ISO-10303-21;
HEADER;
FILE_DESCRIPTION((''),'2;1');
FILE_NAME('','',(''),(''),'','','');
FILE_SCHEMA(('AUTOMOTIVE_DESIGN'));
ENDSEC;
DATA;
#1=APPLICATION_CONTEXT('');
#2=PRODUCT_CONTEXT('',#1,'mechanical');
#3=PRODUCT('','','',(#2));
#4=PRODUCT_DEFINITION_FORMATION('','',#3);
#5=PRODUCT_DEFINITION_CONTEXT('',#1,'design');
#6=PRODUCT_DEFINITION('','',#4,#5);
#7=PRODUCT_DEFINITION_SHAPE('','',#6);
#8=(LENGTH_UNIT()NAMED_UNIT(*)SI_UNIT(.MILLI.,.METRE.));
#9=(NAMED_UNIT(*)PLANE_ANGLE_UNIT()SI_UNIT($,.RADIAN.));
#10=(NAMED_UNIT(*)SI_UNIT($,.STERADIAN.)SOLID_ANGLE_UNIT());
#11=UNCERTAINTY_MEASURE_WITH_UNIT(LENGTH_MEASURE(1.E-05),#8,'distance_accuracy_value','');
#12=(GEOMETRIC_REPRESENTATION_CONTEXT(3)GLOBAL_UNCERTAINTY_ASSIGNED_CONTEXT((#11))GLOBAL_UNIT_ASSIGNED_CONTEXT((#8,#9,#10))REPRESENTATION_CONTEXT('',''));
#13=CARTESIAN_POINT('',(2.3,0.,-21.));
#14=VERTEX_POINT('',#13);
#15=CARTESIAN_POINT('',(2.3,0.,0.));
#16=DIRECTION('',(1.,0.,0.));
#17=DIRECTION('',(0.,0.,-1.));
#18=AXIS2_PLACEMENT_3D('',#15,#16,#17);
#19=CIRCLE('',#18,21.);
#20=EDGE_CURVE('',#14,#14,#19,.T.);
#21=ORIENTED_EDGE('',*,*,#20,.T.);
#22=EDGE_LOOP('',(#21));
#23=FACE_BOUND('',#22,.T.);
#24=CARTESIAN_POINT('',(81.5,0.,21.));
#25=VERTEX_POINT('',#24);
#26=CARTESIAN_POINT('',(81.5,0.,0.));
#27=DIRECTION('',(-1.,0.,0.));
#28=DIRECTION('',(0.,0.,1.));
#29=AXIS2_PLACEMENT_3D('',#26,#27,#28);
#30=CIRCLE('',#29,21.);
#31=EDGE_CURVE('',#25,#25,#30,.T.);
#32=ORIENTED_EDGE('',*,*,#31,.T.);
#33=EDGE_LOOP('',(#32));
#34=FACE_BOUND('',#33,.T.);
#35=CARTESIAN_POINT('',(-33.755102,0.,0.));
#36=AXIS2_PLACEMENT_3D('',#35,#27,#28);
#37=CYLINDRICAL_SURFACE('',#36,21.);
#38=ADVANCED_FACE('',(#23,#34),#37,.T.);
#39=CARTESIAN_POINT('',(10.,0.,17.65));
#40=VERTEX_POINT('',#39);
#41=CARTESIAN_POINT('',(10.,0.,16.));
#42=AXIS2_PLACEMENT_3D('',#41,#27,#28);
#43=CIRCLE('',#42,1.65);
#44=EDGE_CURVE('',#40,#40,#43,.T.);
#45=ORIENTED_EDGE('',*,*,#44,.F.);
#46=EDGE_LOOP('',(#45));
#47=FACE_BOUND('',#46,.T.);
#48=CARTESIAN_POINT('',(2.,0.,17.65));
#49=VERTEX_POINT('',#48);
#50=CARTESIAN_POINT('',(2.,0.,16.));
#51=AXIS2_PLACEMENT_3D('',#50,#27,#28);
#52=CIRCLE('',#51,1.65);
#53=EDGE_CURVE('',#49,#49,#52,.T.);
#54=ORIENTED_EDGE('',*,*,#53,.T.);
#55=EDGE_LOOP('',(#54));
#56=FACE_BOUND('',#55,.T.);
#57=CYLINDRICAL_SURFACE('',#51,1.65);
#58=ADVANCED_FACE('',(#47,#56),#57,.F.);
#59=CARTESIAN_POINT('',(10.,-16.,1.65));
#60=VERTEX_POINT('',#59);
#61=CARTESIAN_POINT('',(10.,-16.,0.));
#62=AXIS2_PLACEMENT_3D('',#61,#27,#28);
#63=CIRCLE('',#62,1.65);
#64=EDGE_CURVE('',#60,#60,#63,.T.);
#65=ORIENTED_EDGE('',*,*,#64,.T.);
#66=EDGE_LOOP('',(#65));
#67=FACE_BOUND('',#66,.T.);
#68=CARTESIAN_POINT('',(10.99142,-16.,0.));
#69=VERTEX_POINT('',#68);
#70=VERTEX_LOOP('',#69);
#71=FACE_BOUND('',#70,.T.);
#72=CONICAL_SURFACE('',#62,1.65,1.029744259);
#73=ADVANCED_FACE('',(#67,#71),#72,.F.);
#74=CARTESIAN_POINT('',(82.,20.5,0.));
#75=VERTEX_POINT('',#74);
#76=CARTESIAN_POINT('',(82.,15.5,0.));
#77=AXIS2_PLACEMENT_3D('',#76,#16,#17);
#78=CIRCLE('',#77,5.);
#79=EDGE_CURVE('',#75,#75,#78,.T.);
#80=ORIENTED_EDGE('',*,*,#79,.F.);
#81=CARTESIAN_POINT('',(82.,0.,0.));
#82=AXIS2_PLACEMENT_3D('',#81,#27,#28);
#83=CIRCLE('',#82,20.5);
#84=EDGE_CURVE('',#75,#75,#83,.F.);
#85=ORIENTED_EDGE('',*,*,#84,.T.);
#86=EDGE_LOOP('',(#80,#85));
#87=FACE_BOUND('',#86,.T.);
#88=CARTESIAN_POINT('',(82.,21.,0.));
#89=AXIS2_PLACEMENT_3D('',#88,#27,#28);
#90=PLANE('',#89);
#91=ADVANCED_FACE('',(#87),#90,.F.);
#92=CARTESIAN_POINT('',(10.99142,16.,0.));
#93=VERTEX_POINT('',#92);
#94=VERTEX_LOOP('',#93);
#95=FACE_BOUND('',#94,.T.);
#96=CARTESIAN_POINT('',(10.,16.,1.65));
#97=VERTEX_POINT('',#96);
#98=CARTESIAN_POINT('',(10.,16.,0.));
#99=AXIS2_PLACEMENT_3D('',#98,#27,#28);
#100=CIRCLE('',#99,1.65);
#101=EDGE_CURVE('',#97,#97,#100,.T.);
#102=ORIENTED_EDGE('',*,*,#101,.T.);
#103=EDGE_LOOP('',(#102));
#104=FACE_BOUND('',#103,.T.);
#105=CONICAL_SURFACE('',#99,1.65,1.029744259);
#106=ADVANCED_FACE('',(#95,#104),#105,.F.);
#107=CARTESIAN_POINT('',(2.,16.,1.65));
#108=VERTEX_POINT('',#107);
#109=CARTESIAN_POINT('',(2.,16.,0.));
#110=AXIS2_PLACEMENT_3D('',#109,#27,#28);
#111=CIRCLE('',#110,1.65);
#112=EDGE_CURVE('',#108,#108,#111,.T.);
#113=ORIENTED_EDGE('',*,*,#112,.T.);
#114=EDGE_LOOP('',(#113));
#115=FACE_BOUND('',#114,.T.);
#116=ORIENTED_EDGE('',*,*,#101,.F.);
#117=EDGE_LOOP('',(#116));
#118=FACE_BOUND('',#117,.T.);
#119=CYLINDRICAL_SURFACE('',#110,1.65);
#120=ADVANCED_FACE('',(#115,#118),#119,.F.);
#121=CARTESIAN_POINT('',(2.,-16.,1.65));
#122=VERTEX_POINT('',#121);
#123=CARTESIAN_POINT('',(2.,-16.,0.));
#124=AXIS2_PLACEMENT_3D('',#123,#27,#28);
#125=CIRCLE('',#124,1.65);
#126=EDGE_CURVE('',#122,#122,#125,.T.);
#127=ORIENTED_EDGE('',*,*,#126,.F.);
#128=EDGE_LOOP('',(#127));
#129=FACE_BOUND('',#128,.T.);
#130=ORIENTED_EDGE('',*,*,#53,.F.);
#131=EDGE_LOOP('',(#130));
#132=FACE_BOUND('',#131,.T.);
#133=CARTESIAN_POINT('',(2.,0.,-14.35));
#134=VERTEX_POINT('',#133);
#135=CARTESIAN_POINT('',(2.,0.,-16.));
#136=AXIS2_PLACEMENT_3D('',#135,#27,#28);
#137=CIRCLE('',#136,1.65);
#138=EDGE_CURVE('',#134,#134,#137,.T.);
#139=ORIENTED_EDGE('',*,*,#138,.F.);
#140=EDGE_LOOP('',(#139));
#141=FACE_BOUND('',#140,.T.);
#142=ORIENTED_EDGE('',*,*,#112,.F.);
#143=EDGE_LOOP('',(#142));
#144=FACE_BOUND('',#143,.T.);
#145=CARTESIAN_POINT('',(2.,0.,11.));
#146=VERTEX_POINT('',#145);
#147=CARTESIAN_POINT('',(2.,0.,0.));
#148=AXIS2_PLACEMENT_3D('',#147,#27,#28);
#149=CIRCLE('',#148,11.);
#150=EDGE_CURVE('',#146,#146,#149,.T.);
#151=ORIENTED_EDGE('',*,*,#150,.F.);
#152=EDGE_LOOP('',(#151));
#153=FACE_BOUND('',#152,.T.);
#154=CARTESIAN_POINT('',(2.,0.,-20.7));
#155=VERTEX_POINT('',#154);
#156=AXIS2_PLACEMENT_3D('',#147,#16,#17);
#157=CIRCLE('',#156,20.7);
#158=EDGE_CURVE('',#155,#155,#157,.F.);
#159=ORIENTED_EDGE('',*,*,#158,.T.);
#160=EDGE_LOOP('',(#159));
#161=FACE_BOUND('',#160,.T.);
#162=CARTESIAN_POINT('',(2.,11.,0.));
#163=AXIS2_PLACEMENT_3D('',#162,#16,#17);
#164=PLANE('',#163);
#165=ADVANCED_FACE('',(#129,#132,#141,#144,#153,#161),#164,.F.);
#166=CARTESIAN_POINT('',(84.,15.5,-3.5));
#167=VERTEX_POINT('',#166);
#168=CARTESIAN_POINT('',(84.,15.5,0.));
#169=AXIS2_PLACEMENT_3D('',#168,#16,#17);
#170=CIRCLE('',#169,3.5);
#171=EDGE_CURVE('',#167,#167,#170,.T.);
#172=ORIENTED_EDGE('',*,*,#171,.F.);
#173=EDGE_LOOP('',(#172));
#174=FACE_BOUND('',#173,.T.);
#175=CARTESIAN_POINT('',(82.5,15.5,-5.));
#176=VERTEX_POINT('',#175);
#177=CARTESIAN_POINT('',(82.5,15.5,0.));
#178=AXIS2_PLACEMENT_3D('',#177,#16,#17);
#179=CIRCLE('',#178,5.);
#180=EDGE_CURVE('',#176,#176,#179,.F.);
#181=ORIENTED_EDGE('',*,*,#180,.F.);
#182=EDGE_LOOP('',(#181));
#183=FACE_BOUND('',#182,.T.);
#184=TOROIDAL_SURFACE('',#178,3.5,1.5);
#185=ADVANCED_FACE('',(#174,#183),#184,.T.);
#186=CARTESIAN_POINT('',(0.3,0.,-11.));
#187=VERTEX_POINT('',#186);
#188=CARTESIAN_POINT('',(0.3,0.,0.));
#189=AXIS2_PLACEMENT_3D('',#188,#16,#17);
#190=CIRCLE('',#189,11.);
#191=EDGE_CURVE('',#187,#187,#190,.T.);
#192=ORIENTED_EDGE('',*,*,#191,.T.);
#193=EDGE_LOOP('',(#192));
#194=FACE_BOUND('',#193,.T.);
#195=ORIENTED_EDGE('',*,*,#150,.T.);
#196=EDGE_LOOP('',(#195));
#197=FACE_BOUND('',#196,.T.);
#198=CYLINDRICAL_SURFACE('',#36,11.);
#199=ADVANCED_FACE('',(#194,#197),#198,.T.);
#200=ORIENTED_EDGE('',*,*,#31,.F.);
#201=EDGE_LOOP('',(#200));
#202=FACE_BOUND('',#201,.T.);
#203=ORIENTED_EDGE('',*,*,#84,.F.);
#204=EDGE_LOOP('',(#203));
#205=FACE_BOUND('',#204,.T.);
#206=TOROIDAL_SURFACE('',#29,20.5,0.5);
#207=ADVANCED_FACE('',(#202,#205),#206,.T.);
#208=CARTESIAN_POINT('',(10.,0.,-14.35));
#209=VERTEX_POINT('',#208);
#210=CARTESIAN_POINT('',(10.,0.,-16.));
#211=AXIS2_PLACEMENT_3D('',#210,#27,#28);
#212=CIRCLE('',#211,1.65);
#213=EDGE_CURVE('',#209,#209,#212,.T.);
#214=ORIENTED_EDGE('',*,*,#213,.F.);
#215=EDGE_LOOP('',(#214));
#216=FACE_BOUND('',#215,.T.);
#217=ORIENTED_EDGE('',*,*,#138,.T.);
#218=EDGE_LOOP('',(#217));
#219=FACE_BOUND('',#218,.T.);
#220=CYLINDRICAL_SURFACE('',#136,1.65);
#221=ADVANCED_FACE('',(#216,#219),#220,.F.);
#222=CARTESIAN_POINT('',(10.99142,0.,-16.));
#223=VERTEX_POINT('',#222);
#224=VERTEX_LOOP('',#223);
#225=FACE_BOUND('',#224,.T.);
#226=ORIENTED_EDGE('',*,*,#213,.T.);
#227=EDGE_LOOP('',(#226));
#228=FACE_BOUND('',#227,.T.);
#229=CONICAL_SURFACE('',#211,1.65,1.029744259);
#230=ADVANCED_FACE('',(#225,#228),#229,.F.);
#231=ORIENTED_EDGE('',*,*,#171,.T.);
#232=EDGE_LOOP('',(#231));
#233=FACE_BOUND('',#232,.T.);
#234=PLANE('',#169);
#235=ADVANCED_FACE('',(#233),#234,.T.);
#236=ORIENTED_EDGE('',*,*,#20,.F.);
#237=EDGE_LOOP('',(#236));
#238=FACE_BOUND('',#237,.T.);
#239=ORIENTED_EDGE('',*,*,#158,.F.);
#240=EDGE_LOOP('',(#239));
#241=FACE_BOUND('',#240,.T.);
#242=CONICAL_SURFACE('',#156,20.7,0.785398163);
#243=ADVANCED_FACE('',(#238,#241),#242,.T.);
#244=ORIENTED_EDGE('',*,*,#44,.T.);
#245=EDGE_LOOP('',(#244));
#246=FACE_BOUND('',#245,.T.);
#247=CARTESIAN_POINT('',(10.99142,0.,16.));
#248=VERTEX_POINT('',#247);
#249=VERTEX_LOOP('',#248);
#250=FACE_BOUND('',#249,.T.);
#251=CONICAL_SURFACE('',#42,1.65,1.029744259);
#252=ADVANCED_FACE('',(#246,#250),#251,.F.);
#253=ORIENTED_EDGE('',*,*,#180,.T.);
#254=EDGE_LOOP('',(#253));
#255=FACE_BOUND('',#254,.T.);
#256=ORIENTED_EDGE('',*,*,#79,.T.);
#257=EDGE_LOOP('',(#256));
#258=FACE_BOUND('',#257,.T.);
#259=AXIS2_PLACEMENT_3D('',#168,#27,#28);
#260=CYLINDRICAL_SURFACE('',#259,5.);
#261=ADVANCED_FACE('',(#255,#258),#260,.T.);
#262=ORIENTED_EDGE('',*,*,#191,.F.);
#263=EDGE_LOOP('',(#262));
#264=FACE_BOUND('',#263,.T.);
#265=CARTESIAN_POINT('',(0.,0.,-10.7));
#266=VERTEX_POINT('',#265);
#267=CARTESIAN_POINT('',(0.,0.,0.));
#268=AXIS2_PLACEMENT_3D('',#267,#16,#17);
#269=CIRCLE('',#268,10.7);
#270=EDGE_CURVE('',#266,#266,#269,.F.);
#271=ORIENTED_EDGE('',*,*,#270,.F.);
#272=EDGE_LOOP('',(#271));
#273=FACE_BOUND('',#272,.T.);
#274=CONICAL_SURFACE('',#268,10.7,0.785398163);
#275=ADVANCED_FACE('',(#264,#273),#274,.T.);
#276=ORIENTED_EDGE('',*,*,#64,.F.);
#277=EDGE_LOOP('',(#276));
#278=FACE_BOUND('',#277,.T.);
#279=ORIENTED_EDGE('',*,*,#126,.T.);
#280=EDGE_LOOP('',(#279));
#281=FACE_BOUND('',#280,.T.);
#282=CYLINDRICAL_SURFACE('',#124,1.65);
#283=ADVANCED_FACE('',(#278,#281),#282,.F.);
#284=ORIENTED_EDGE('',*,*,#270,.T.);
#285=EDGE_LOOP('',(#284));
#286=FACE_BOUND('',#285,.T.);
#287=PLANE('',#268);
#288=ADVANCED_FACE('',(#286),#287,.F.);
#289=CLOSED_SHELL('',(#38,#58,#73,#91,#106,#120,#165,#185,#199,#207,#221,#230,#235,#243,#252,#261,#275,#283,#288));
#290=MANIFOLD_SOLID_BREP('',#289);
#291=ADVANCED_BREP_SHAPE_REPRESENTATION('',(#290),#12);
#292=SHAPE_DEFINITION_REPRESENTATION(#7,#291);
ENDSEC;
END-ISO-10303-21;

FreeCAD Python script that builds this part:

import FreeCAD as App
import Part
import Sketcher
from FreeCAD import Vector
Q = App.Units.Quantity


def edges_at(feature, points):
    """Names of the edges that pass closest to the given points."""
    edges = feature.Shape.Edges
    near = lambda p: min(range(len(edges)), key=lambda i: edges[i].distToShape(Part.Vertex(*p))[0])
    return sorted({f"Edge{near(p) + 1}" for p in points})

doc = App.newDocument("Part")
params = doc.addObject("Spreadsheet::Sheet", "Params")
for row, (alias, value) in enumerate([
    ("sketch1_width", "82 mm"),
    ("sketch1_width2", "80 mm"),
    ("sketch1_height", "11 mm"),
    ("sketch1_height2", "21 mm"),
    ("revolution_angle", "360 deg"),
    ("chamfer_size", "0.3 mm"),
    ("fillet_radius", "0.5 mm"),
    ("sketch2_diameter", "10 mm"),
    ("pad1_length", "2 mm"),
    ("fillet2_radius", "1.5 mm"),
    ("sketch3_width", "8 mm"),
    ("sketch3_height", "1.65 mm"),
    ("groove_angle", "360 deg"),
], start=1):
    params.set(f"A{row}", alias)
    params.set(f"B{row}", "=" + value)
    params.setAlias(f"B{row}", alias)

body = doc.addObject("PartDesign::Body", "Body")

sketch1 = body.newObject("Sketcher::SketchObject", "Sketch")
sketch1.AttachmentSupport = (doc.getObject("XY_Plane"), [""])
sketch1.MapMode = "FlatFace"
sketch1.addGeometry(Part.LineSegment(Vector(0, 11, 0), Vector(0, 0, 0)), False)
sketch1.addGeometry(Part.LineSegment(Vector(0, 0, 0), Vector(82, 0, 0)), False)
sketch1.addGeometry(Part.LineSegment(Vector(82, 0, 0), Vector(82, 21, 0)), False)
sketch1.addGeometry(Part.LineSegment(Vector(82, 21, 0), Vector(2, 21, 0)), False)
sketch1.addGeometry(Part.LineSegment(Vector(2, 21, 0), Vector(2, 11, 0)), False)
sketch1.addGeometry(Part.LineSegment(Vector(2, 11, 0), Vector(0, 11, 0)), False)
sketch1.addConstraint(Sketcher.Constraint("Coincident", 0, 2, 1, 1))
sketch1.addConstraint(Sketcher.Constraint("Coincident", 1, 2, 2, 1))
sketch1.addConstraint(Sketcher.Constraint("Coincident", 2, 2, 3, 1))
sketch1.addConstraint(Sketcher.Constraint("Coincident", 3, 2, 4, 1))
sketch1.addConstraint(Sketcher.Constraint("Coincident", 4, 2, 5, 1))
sketch1.addConstraint(Sketcher.Constraint("Coincident", 5, 2, 0, 1))
sketch1.addConstraint(Sketcher.Constraint("Vertical", 0))
sketch1.addConstraint(Sketcher.Constraint("Horizontal", 1))
sketch1.addConstraint(Sketcher.Constraint("Vertical", 2))
sketch1.addConstraint(Sketcher.Constraint("Horizontal", 3))
sketch1.addConstraint(Sketcher.Constraint("Vertical", 4))
sketch1.addConstraint(Sketcher.Constraint("Horizontal", 5))
sketch1.addConstraint(Sketcher.Constraint("Coincident", 0, 2, -1, 1))
sketch1.addConstraint(Sketcher.Constraint("DistanceX", 1, 1, 1, 2, 82.0))
sketch1.addConstraint(Sketcher.Constraint("DistanceX", 3, 2, 3, 1, 80.0))
sketch1.addConstraint(Sketcher.Constraint("DistanceY", 0, 2, 0, 1, 11.0))
sketch1.addConstraint(Sketcher.Constraint("DistanceY", 2, 1, 2, 2, 21.0))
sketch1.setExpression("Constraints[13]", "Params.sketch1_width")
sketch1.setExpression("Constraints[14]", "Params.sketch1_width2")
sketch1.setExpression("Constraints[15]", "Params.sketch1_height")
sketch1.setExpression("Constraints[16]", "Params.sketch1_height2")
revolution = body.newObject("PartDesign::Revolution", "Revolution")
revolution.Profile = sketch1
revolution.ReferenceAxis = (sketch1, ["H_Axis"])
revolution.setExpression("Angle", "Params.revolution_angle")
doc.recompute()

chamfer = body.newObject("PartDesign::Chamfer", "Chamfer")
chamfer.Base = (revolution, edges_at(revolution, [(2, 0, -21), (0, 0, -11)]))
chamfer.setExpression("Size", "Params.chamfer_size")
doc.recompute()

fillet = body.newObject("PartDesign::Fillet", "Fillet")
fillet.Base = (chamfer, edges_at(chamfer, [(82, 0, -21)]))
fillet.setExpression("Radius", "Params.fillet_radius")

sketch2 = body.newObject("Sketcher::SketchObject", "Sketch001")
sketch2.AttachmentSupport = (doc.getObject("YZ_Plane"), [""])
sketch2.MapMode = "FlatFace"
sketch2.AttachmentOffset = App.Placement(Vector(0, 0, 82), App.Rotation())
sketch2.addGeometry(Part.Circle(Vector(15.5, 0, 0), Vector(0, 0, 1), 5), False)
sketch2.addConstraint(Sketcher.Constraint("PointOnObject", 0, 3, -1))
sketch2.addConstraint(Sketcher.Constraint("Diameter", 0, 10.0))
sketch2.addConstraint(Sketcher.Constraint("DistanceX", -1, 1, 0, 3, 15.5))
sketch2.setExpression("Constraints[1]", "Params.sketch2_diameter")
pad1 = body.newObject("PartDesign::Pad", "Pad")
pad1.Profile = sketch2
pad1.setExpression("Length", "Params.pad1_length")
doc.recompute()

fillet2 = body.newObject("PartDesign::Fillet", "Fillet001")
fillet2.Base = (pad1, edges_at(pad1, [(84, 10.5, 0)]))
fillet2.setExpression("Radius", "Params.fillet2_radius")

sketch3 = body.newObject("Sketcher::SketchObject", "Sketch002")
sketch3.AttachmentSupport = (doc.getObject("XZ_Plane"), [""])
sketch3.MapMode = "FlatFace"
sketch3.AttachmentOffset = App.Placement(Vector(0, 0, -16), App.Rotation())
sketch3.addGeometry(Part.LineSegment(Vector(10.99142, 0, 0), Vector(2, 0, 0)), False)
sketch3.addGeometry(Part.LineSegment(Vector(2, 0, 0), Vector(2, 1.65, 0)), False)
sketch3.addGeometry(Part.LineSegment(Vector(2, 1.65, 0), Vector(10, 1.65, 0)), False)
sketch3.addGeometry(Part.LineSegment(Vector(10, 1.65, 0), Vector(10.99142, 0, 0)), False)
sketch3.addConstraint(Sketcher.Constraint("Coincident", 0, 2, 1, 1))
sketch3.addConstraint(Sketcher.Constraint("Coincident", 1, 2, 2, 1))
sketch3.addConstraint(Sketcher.Constraint("Coincident", 2, 2, 3, 1))
sketch3.addConstraint(Sketcher.Constraint("Coincident", 3, 2, 0, 1))
sketch3.addConstraint(Sketcher.Constraint("Horizontal", 0))
sketch3.addConstraint(Sketcher.Constraint("Vertical", 1))
sketch3.addConstraint(Sketcher.Constraint("Horizontal", 2))
sketch3.addConstraint(Sketcher.Constraint("PointOnObject", 0, 2, -1))
sketch3.addConstraint(Sketcher.Constraint("DistanceX", 2, 1, 2, 2, 8.0))
sketch3.addConstraint(Sketcher.Constraint("Angle", 3, Q("-59 deg")))
sketch3.addConstraint(Sketcher.Constraint("DistanceX", -1, 1, 0, 2, 2.0))
sketch3.addConstraint(Sketcher.Constraint("DistanceY", 1, 1, 1, 2, 1.65))
sketch3.setExpression("Constraints[8]", "Params.sketch3_width")
sketch3.setExpression("Constraints[11]", "Params.sketch3_height")
groove = body.newObject("PartDesign::Groove", "Groove")
groove.Profile = sketch3
groove.ReferenceAxis = (sketch3, ["H_Axis"])
groove.setExpression("Angle", "Params.groove_angle")
doc.recompute()

polarpattern = body.newObject("PartDesign::PolarPattern", "PolarPattern")
polarpattern.Originals = [groove]
polarpattern.Axis = (doc.getObject("X_Axis"), [""])
polarpattern.Angle = 360
polarpattern.Occurrences = 4
body.Tip = polarpattern

doc.recompute()
